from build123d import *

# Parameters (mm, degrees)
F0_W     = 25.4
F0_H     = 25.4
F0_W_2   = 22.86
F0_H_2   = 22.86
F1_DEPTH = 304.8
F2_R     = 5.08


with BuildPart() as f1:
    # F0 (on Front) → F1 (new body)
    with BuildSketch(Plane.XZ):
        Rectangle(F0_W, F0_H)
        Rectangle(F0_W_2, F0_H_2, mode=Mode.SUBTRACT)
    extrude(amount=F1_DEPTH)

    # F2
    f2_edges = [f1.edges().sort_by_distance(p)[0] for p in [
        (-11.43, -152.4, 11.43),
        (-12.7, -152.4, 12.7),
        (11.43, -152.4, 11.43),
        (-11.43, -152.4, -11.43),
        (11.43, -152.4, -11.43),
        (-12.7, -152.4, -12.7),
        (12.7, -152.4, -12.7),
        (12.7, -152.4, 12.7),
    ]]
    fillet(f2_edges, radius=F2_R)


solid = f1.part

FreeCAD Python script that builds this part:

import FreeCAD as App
import Part
import Sketcher

V = App.Vector
Q = App.Units.Quantity


def edges_at(feature, points):
    """Names of the edges that pass closest to the given points."""
    edges = feature.Shape.Edges
    near = lambda p: min(range(len(edges)), key=lambda i: edges[i].distToShape(Part.Vertex(*p))[0])
    return sorted({f"Edge{near(p) + 1}" for p in points})


def add_polygon(sketch, points):
    """Adds a closed chain of lines whose ends are joined by coincident constraints."""
    first, n = sketch.GeometryCount, len(points)
    for a, b in zip(points, points[1:] + points[:1]):
        sketch.addGeometry(Part.LineSegment(App.Vector(*a, 0), App.Vector(*b, 0)), False)
    for i in range(n):
        sketch.addConstraint(Sketcher.Constraint("Coincident", first + i, 2, first + (i + 1) % n, 1))

doc = App.newDocument("Part")
params = doc.addObject("Spreadsheet::Sheet", "Params")
for row, (alias, value) in enumerate([
    ("sketch1_width", "1 in"),
    ("sketch1_width2", "0.9 in"),
    ("pad1_length", "12 in"),
    ("fillet_radius", "0.2 in"),
], start=1):
    params.set(f"A{row}", alias)
    params.set(f"B{row}", "=" + value)
    params.setAlias(f"B{row}", alias)

body = doc.addObject("PartDesign::Body", "Body")

# Sketch on XZ plane
sketch1 = body.newObject("Sketcher::SketchObject", "Sketch")
sketch1.AttachmentSupport = (doc.getObject("XZ_Plane"), [""])
sketch1.MapMode = "FlatFace"
add_polygon(sketch1, [(-12.7, 12.7), (-12.7, -12.7), (12.7, -12.7), (12.7, 12.7)])  # lines 0-3
add_polygon(sketch1, [(11.43, -11.43), (-11.43, -11.43), (-11.43, 11.43), (11.43, 11.43)])  # lines 4-7
sketch1.addConstraint([
    Sketcher.Constraint("Vertical", 0),
    Sketcher.Constraint("Horizontal", 1),
    Sketcher.Constraint("Vertical", 2),
    Sketcher.Constraint("Horizontal", 3),
    Sketcher.Constraint("Horizontal", 4),
    Sketcher.Constraint("Vertical", 5),
    Sketcher.Constraint("Horizontal", 6),
    Sketcher.Constraint("Vertical", 7),
    Sketcher.Constraint("Symmetric", 0, 2, 2, 2, -1, 1),
    Sketcher.Constraint("Symmetric", 4, 2, 6, 2, -1, 1),
    Sketcher.Constraint("Equal", 3, 0),
    Sketcher.Constraint("Equal", 6, 5),
    Sketcher.Constraint("DistanceX", 1, 1, 1, 2, Q("1 in")),
    Sketcher.Constraint("DistanceX", 4, 2, 4, 1, Q("0.9 in")),
])
sketch1.setExpression("Constraints[20]", "Params.sketch1_width")
sketch1.setExpression("Constraints[21]", "Params.sketch1_width2")
pad1 = body.newObject("PartDesign::Pad", "Pad")
pad1.Profile = sketch1
pad1.setExpression("Length", "Params.pad1_length")
doc.recompute()

fillet = body.newObject("PartDesign::Fillet", "Fillet")
fillet.Base = (pad1, edges_at(pad1, [
    (-11.43, -152.4, 11.43),
    (-12.7, -152.4, 12.7),
    (11.43, -152.4, 11.43),
    (-11.43, -152.4, -11.43),
    (11.43, -152.4, -11.43),
    (-12.7, -152.4, -12.7),
    (12.7, -152.4, -12.7),
    (12.7, -152.4, 12.7),
]))
fillet.setExpression("Radius", "Params.fillet_radius")

doc.recompute()
